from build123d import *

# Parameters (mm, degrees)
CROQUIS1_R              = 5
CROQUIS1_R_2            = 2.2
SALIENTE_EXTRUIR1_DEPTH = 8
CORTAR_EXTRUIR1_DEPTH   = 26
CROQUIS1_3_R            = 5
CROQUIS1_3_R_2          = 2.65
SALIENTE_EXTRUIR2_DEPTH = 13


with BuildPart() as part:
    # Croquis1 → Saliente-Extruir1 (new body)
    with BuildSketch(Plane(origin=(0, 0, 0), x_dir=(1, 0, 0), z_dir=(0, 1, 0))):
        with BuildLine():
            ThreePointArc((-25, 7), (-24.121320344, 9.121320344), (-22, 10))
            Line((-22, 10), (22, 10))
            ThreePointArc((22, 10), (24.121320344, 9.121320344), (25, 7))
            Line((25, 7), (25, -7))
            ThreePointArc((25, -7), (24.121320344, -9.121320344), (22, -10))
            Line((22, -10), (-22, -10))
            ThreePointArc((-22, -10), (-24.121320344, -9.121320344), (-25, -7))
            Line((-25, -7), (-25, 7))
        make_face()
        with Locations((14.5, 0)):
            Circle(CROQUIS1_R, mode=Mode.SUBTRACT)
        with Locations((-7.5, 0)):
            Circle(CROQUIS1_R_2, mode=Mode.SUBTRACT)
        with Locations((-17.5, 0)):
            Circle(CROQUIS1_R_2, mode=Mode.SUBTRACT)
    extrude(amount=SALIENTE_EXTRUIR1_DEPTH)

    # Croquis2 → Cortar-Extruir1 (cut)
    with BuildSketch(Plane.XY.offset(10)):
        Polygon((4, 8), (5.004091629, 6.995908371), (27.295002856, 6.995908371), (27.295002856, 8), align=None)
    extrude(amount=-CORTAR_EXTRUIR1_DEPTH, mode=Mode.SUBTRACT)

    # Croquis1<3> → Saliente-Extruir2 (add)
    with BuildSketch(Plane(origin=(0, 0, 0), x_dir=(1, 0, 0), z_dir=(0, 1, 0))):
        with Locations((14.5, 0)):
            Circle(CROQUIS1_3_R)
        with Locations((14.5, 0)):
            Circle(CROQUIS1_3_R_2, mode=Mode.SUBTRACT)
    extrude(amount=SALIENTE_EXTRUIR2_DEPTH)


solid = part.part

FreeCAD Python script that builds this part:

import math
import FreeCAD as App
import Part
import Sketcher
Q = App.Units.Quantity


def add_polygon(sketch, points):
    """Adds a closed chain of lines whose ends are joined by coincident constraints."""
    first, n = sketch.GeometryCount, len(points)
    for a, b in zip(points, points[1:] + points[:1]):
        sketch.addGeometry(Part.LineSegment(App.Vector(*a, 0), App.Vector(*b, 0)), False)
    for i in range(n):
        sketch.addConstraint(Sketcher.Constraint("Coincident", first + i, 2, first + (i + 1) % n, 1))

doc = App.newDocument("Part")
body = doc.addObject("PartDesign::Body", "Body")

# Sketch on XZ plane
sketch1 = body.newObject("Sketcher::SketchObject", "Sketch")
sketch1.AttachmentSupport = (doc.getObject("XZ_Plane"), [""])
sketch1.MapMode = "FlatFace"
sketch1.addGeometry([
    Part.ArcOfCircle(Part.Circle(App.Vector(-22, -7, 0), App.Vector(0, 0, 1), 3), math.radians(180), math.radians(270)),  # 0
    Part.LineSegment(App.Vector(-25, -7, 0), App.Vector(-25, 7, 0)),  # 1
    Part.ArcOfCircle(Part.Circle(App.Vector(-22, 7, 0), App.Vector(0, 0, 1), 3), math.radians(90), math.radians(180)),  # 2
    Part.LineSegment(App.Vector(-22, 10, 0), App.Vector(22, 10, 0)),  # 3
    Part.ArcOfCircle(Part.Circle(App.Vector(22, 7, 0), App.Vector(0, 0, 1), 3), math.radians(0), math.radians(90)),  # 4
    Part.LineSegment(App.Vector(25, 7, 0), App.Vector(25, -7, 0)),  # 5
    Part.ArcOfCircle(Part.Circle(App.Vector(22, -7, 0), App.Vector(0, 0, 1), 3), math.radians(-90), math.radians(0)),  # 6
    Part.LineSegment(App.Vector(22, -10, 0), App.Vector(-22, -10, 0)),  # 7
    Part.Circle(App.Vector(14.5, 0, 0), App.Vector(0, 0, 1), 5),  # 8
    Part.Circle(App.Vector(-7.5, 0, 0), App.Vector(0, 0, 1), 2.2),  # 9
    Part.Circle(App.Vector(-17.5, 0, 0), App.Vector(0, 0, 1), 2.2),  # 10
], False)
sketch1.addConstraint([
    Sketcher.Constraint("Tangent", 0, 1, 1, 1),
    Sketcher.Constraint("Tangent", 1, 2, 2, 2),
    Sketcher.Constraint("Tangent", 2, 1, 3, 1),
    Sketcher.Constraint("Tangent", 3, 2, 4, 2),
    Sketcher.Constraint("Tangent", 4, 1, 5, 1),
    Sketcher.Constraint("Tangent", 5, 2, 6, 2),
    Sketcher.Constraint("Tangent", 6, 1, 7, 1),
    Sketcher.Constraint("Tangent", 7, 2, 0, 2),
    Sketcher.Constraint("Vertical", 1),
    Sketcher.Constraint("Horizontal", 3),
    Sketcher.Constraint("Vertical", 5),
    Sketcher.Constraint("Horizontal", 7),
    Sketcher.Constraint("Equal", 0, 2),
    Sketcher.Constraint("Equal", 2, 4),
    Sketcher.Constraint("Equal", 4, 6),
    Sketcher.Constraint("Equal", 9, 10),
    Sketcher.Constraint("Symmetric", 0, 3, 4, 3, -1, 1),
    Sketcher.Constraint("PointOnObject", 8, 3, -1),
    Sketcher.Constraint("PointOnObject", 9, 3, -1),
    Sketcher.Constraint("PointOnObject", 10, 3, -1),
    Sketcher.Constraint("Diameter", 8, 10.0),
    Sketcher.Constraint("Radius", 0, 3.0),
    Sketcher.Constraint("Diameter", 9, 4.4),
    Sketcher.Constraint("DistanceX", 3, 1, 3, 2, 44.0),
    Sketcher.Constraint("DistanceY", 1, 1, 1, 2, 14.0),
    Sketcher.Constraint("DistanceX", 9, 3, 8, 3, 22.0),
    Sketcher.Constraint("DistanceX", 10, 3, 9, 3, 10.0),
    Sketcher.Constraint("DistanceX", -1, 1, 8, 3, 14.5),
])
pad1 = body.newObject("PartDesign::Pad", "Pad")
pad1.Profile = sketch1
pad1.Length = 8
pad1.Reversed = True

# Sketch on XY plane
sketch2 = body.newObject("Sketcher::SketchObject", "Sketch001")
sketch2.AttachmentSupport = (doc.getObject("XY_Plane"), [""])
sketch2.MapMode = "FlatFace"
sketch2.AttachmentOffset = App.Placement(App.Vector(0, 0, 10), App.Rotation())
add_polygon(sketch2, [(4, 8), (5, 7), (27.3, 7), (27.3, 8)])  # lines 0-3
sketch2.addConstraint([
    Sketcher.Constraint("Horizontal", 1),
    Sketcher.Constraint("Vertical", 2),
    Sketcher.Constraint("Horizontal", 3),
    Sketcher.Constraint("Angle", 0, Q("-45 deg")),
    Sketcher.Constraint("DistanceY", -1, 1, 2, 2, 8.0),
    Sketcher.Constraint("DistanceX", -1, 1, 3, 2, 4.0),
    Sketcher.Constraint("Distance", 0, 1.42),
    Sketcher.Constraint("DistanceX", 1, 1, 1, 2, 22.290911),
])
pocket1 = body.newObject("PartDesign::Pocket", "Pocket")
pocket1.Profile = sketch2
pocket1.Length = 26

# Sketch on XZ plane
sketch3 = body.newObject("Sketcher::SketchObject", "Sketch002")
sketch3.AttachmentSupport = (doc.getObject("XZ_Plane"), [""])
sketch3.MapMode = "FlatFace"
sketch3.addGeometry([
    Part.Circle(App.Vector(14.5, 0, 0), App.Vector(0, 0, 1), 5),
    Part.Circle(App.Vector(14.5, 0, 0), App.Vector(0, 0, 1), 2.6),
], False)
sketch3.addConstraint([
    Sketcher.Constraint("Coincident", 1, 3, 0, 3),
    Sketcher.Constraint("PointOnObject", 0, 3, -1),
    Sketcher.Constraint("Diameter", 0, 10.0),
    Sketcher.Constraint("Diameter", 1, 5.3),
    Sketcher.Constraint("DistanceX", -1, 1, 0, 3, 14.5),
])
pad2 = body.newObject("PartDesign::Pad", "Pad001")
pad2.Profile = sketch3
pad2.Length = 13
pad2.Reversed = True

doc.recompute()
